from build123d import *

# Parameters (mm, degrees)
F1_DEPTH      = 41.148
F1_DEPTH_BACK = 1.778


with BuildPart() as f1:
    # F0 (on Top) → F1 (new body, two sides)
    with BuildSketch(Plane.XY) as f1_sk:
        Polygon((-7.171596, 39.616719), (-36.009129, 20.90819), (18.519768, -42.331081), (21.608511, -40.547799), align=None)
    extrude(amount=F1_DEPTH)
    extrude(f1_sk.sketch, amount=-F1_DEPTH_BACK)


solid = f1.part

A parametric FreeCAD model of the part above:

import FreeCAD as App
import Part
import Sketcher
from FreeCAD import Vector
Q = App.Units.Quantity

doc = App.newDocument("Part")
body = doc.addObject("PartDesign::Body", "Body")

sketch1 = body.newObject("Sketcher::SketchObject", "Sketch")
sketch1.AttachmentSupport = (doc.getObject("XY_Plane"), [""])
sketch1.MapMode = "FlatFace"
sketch1.addGeometry([
    Part.LineSegment(Vector(-7.171596, 39.616719, 0), Vector(-36.009129, 20.90819, 0)),
    Part.LineSegment(Vector(-36.009129, 20.90819, 0), Vector(18.519768, -42.331081, 0)),
    Part.LineSegment(Vector(18.519768, -42.331081, 0), Vector(21.608511, -40.547799, 0)),
    Part.LineSegment(Vector(21.608511, -40.547799, 0), Vector(-7.171596, 39.616719, 0)),
], False)
sketch1.addConstraint([
    Sketcher.Constraint("Coincident", 0, 2, 1, 1),
    Sketcher.Constraint("Coincident", 1, 2, 2, 1),
    Sketcher.Constraint("Coincident", 2, 2, 3, 1),
    Sketcher.Constraint("Coincident", 3, 2, 0, 1),
    Sketcher.Constraint("Angle", 1, Q("-49.230011 deg")),
    Sketcher.Constraint("Distance", 3, Q("85.174201 mm")),
    Sketcher.Constraint("DistanceY", 2, 2, -1, 1, Q("40.547799 mm")),
    Sketcher.Constraint("DistanceY", 1, 2, 3, 2, Q("81.9478 mm")),
    Sketcher.Constraint("Distance", 0, Q("34.374589 mm")),
    Sketcher.Constraint("Distance", 1, Q("83.502132 mm")),
    Sketcher.Constraint("Distance", 2, Q("3.566571 mm")),
    Sketcher.Constraint("DistanceX", 0, 2, -1, 1, Q("36.009129 mm")),
])
pad1 = body.newObject("PartDesign::Pad", "Pad")
pad1.Profile = sketch1
pad1.Type = "TwoLengths"
pad1.Length = Q("1.62 in")
pad1.Length2 = Q("0.07 in")

doc.recompute()
